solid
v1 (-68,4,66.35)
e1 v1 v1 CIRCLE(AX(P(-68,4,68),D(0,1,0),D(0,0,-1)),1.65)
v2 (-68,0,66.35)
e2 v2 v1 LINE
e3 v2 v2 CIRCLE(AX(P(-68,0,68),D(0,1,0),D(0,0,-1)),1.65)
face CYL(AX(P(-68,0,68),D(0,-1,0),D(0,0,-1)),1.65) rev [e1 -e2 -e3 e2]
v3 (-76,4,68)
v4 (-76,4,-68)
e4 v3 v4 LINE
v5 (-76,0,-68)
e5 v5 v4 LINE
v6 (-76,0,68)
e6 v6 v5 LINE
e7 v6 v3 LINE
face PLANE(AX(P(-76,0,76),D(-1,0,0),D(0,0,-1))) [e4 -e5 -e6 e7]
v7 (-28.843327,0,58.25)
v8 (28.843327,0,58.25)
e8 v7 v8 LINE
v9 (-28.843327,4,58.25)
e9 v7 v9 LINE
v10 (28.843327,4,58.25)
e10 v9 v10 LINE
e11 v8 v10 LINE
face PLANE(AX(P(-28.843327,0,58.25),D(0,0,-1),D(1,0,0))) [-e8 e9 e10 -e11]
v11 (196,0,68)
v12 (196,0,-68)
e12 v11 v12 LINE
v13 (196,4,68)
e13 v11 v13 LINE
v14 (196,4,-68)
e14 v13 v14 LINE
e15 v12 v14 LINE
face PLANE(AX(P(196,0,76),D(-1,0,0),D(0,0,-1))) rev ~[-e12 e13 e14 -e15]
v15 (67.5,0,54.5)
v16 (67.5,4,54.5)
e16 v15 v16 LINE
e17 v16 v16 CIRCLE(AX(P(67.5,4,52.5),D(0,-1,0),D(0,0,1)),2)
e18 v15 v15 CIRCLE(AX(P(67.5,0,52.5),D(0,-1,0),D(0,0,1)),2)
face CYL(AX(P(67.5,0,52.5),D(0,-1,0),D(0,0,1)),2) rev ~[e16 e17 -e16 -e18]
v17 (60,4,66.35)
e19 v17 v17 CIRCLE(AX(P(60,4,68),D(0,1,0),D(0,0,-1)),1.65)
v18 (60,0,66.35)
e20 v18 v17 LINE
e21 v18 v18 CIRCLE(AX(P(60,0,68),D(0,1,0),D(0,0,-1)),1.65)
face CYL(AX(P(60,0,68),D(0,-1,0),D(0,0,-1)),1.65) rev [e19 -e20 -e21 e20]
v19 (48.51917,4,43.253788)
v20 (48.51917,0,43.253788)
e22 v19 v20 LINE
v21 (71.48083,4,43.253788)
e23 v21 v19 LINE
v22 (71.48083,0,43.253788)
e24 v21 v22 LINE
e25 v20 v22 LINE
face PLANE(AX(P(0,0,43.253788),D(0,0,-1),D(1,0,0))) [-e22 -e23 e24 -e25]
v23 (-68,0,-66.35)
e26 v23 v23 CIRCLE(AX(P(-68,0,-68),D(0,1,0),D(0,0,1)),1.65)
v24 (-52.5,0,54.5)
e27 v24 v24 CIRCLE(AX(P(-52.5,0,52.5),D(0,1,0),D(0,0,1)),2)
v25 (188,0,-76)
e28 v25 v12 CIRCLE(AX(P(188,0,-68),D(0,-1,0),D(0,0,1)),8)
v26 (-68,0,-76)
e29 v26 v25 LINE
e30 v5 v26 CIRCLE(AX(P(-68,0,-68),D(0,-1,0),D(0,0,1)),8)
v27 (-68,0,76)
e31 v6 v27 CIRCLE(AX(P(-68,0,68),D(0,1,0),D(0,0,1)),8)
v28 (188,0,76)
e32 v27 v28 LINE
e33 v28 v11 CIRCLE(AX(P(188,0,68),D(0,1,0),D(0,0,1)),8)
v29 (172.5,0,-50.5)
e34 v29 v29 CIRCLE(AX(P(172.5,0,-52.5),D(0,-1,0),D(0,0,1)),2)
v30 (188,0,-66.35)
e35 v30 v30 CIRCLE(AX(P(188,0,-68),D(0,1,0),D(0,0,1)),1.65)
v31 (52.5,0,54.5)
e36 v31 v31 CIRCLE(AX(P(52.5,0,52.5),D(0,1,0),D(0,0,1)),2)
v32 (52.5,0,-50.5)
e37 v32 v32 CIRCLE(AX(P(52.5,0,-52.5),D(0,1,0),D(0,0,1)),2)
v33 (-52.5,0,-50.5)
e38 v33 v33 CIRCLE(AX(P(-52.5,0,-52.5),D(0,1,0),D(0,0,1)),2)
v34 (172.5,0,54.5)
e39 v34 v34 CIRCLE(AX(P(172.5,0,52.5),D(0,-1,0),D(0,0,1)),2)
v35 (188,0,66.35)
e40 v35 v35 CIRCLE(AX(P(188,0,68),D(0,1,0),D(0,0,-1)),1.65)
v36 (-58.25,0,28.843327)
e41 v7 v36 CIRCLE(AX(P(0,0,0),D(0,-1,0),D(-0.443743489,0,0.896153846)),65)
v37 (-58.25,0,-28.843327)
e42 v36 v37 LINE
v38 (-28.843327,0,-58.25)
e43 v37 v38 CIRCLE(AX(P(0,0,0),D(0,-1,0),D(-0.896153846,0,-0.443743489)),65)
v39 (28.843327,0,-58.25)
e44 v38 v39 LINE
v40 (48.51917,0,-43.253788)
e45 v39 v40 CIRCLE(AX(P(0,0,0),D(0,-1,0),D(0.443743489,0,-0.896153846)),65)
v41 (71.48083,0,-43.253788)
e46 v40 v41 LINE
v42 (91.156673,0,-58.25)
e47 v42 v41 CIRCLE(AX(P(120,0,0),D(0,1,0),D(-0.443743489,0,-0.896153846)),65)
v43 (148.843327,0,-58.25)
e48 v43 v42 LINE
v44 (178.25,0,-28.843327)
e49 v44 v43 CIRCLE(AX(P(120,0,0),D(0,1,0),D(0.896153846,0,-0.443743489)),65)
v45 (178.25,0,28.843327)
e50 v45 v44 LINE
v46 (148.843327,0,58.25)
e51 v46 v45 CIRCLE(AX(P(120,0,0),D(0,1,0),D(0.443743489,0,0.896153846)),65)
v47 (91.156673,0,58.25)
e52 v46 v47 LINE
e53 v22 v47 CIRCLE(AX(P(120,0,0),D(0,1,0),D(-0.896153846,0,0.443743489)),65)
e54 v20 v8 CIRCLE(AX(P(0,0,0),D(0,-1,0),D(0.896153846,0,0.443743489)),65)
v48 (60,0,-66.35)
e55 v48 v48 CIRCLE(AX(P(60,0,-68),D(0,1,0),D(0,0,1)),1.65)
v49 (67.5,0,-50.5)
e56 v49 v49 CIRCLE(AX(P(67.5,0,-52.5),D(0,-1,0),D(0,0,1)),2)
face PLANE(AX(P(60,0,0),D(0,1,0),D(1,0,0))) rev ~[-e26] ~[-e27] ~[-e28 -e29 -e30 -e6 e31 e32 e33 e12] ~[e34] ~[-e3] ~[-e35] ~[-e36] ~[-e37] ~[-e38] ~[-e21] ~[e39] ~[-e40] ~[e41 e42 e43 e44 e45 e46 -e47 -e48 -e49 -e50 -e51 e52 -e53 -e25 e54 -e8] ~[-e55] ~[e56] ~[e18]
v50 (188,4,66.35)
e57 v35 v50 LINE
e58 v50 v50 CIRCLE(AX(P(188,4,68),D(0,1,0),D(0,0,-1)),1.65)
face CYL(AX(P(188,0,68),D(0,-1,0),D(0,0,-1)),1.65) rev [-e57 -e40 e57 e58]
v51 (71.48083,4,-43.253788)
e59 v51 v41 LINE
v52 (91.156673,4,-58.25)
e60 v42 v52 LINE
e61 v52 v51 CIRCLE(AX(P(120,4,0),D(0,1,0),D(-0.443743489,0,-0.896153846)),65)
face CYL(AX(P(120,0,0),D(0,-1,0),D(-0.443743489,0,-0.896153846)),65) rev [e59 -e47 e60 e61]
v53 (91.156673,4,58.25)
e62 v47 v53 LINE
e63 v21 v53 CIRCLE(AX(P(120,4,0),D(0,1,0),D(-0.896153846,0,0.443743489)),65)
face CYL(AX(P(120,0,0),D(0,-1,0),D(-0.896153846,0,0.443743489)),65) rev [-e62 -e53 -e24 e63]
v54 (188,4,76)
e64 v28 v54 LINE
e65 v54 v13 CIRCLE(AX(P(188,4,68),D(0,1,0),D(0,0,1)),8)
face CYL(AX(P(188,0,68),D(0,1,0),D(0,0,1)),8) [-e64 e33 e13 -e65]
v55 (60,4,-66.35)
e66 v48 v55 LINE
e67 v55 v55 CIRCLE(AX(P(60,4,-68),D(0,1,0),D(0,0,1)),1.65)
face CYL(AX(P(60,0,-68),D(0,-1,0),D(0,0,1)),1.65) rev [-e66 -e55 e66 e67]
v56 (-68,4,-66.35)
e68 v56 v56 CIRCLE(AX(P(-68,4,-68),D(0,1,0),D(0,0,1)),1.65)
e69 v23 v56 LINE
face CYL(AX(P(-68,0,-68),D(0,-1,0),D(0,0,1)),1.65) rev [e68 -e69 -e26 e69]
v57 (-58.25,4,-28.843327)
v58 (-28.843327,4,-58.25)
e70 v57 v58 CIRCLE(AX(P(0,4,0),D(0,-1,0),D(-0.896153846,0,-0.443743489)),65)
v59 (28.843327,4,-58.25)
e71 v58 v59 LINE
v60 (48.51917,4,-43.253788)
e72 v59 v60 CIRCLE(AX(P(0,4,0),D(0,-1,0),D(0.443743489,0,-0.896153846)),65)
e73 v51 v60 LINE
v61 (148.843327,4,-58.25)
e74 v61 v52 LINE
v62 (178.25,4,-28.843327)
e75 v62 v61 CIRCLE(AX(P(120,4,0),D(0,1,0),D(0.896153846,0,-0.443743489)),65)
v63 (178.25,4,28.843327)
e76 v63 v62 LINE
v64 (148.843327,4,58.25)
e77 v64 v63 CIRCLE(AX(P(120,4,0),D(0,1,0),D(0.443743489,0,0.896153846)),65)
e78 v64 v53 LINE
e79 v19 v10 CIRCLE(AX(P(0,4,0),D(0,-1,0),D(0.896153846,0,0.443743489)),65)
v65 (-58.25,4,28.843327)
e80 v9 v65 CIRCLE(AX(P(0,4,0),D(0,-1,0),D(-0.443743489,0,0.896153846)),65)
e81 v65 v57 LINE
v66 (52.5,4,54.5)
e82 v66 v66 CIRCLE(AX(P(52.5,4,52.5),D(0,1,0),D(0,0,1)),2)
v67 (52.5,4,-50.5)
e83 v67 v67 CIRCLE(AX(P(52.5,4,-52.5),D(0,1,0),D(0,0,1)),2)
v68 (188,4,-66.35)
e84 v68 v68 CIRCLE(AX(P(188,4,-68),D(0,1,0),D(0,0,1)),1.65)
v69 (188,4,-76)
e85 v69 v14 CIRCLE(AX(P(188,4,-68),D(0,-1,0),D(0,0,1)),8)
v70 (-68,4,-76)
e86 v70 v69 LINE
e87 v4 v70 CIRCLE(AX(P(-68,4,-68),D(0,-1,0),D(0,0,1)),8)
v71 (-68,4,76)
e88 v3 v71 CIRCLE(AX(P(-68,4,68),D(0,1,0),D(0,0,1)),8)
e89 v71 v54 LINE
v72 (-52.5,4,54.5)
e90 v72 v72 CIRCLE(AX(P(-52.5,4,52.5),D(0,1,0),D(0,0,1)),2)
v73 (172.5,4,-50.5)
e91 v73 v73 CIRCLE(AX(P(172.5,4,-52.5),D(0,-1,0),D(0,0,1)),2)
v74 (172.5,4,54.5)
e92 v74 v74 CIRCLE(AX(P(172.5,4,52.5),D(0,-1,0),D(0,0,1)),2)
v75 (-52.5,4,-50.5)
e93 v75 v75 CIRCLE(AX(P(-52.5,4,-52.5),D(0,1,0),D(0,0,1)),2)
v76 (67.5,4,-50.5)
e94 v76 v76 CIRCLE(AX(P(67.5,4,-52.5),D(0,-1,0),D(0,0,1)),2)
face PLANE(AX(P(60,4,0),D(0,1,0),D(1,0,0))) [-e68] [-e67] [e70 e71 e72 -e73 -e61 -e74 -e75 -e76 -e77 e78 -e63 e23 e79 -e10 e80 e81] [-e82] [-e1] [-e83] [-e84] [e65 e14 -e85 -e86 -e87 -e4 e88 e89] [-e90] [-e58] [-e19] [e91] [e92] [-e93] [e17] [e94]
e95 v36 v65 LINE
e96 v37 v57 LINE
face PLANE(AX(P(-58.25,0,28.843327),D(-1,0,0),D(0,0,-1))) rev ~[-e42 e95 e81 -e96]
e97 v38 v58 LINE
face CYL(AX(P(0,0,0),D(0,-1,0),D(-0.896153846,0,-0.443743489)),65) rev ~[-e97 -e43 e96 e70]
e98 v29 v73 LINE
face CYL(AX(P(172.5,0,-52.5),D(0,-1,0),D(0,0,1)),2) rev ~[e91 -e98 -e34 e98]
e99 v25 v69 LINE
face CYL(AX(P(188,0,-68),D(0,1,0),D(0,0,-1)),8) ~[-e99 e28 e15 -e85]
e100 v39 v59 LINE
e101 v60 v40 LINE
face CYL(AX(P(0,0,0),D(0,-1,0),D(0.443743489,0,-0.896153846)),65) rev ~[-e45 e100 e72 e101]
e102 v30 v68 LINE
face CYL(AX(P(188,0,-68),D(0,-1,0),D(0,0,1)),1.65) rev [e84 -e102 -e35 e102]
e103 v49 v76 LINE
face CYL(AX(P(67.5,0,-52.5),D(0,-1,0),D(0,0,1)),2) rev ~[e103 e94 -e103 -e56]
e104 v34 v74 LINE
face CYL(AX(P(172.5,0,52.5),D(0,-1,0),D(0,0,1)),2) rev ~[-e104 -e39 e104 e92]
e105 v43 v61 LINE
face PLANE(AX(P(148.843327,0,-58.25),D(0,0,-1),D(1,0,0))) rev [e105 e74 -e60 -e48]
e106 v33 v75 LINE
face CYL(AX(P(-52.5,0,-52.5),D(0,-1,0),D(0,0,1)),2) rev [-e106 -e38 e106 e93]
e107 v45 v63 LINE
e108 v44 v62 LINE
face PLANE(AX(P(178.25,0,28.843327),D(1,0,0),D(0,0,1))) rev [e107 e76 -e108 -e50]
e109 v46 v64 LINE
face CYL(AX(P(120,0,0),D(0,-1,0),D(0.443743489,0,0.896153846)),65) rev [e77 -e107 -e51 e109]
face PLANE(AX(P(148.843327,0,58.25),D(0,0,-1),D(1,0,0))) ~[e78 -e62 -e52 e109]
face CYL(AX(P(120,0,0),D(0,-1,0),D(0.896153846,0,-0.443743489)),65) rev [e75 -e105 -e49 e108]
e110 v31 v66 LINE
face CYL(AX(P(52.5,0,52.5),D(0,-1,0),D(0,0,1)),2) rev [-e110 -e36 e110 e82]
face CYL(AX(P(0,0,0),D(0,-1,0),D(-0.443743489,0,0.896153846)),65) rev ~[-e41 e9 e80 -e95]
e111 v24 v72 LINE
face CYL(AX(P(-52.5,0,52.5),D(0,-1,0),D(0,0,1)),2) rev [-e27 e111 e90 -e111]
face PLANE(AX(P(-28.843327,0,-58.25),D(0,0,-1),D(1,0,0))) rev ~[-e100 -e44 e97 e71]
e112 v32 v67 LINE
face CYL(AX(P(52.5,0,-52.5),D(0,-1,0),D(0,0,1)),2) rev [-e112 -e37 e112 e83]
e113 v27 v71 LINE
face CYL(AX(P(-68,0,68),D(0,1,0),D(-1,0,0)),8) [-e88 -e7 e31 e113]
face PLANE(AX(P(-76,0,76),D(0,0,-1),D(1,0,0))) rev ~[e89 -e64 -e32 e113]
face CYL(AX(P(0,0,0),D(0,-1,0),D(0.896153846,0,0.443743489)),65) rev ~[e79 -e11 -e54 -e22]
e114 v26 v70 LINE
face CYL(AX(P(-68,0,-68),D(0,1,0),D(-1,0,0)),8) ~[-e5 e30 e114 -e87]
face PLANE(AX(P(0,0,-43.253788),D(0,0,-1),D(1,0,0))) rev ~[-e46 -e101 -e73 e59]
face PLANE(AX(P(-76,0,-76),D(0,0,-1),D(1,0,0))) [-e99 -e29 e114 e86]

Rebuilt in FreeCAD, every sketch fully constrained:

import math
import FreeCAD as App
import Part
import Sketcher


def edges_at(feature, points):
    """Names of the edges that pass closest to the given points."""
    edges = feature.Shape.Edges
    near = lambda p: min(range(len(edges)), key=lambda i: edges[i].distToShape(Part.Vertex(*p))[0])
    return sorted({f"Edge{near(p) + 1}" for p in points})


def add_polygon(sketch, points):
    """Adds a closed chain of lines whose ends are joined by coincident constraints."""
    first, n = sketch.GeometryCount, len(points)
    for a, b in zip(points, points[1:] + points[:1]):
        sketch.addGeometry(Part.LineSegment(App.Vector(*a, 0), App.Vector(*b, 0)), False)
    for i in range(n):
        sketch.addConstraint(Sketcher.Constraint("Coincident", first + i, 2, first + (i + 1) % n, 1))

doc = App.newDocument("Part")
body = doc.addObject("PartDesign::Body", "Body")

sketch1 = body.newObject("Sketcher::SketchObject", "Sketch")
sketch1.AttachmentSupport = (doc.getObject("XZ_Plane"), [""])
sketch1.MapMode = "FlatFace"
add_polygon(sketch1, [(-60, -60), (-60, 60), (60, 60), (60, -60)])
sketch1.addGeometry(Part.Circle(App.Vector(-52.5, 52.5, 0), App.Vector(0, 0, 1), 2), False)
sketch1.addGeometry(Part.Circle(App.Vector(52.5, 52.5, 0), App.Vector(0, 0, 1), 2), False)
sketch1.addGeometry(Part.Circle(App.Vector(-52.5, -52.5, 0), App.Vector(0, 0, 1), 2), False)
sketch1.addGeometry(Part.LineSegment(App.Vector(28.843327, 58.25, 0), App.Vector(-28.843327, 58.25, 0)), False)
sketch1.addGeometry(Part.ArcOfCircle(Part.Circle(App.Vector(0, 0, 0), App.Vector(0, 0, 1), 65), math.radians(116.342976), math.radians(153.657024)), False)
sketch1.addGeometry(Part.LineSegment(App.Vector(-58.25, 28.843327, 0), App.Vector(-58.25, -28.843327, 0)), False)
sketch1.addGeometry(Part.ArcOfCircle(Part.Circle(App.Vector(0, 0, 0), App.Vector(0, 0, 1), 65), math.radians(-153.657024), math.radians(-116.342976)), False)
sketch1.addGeometry(Part.LineSegment(App.Vector(-28.843327, -58.25, 0), App.Vector(28.843327, -58.25, 0)), False)
sketch1.addGeometry(Part.ArcOfCircle(Part.Circle(App.Vector(0, 0, 0), App.Vector(0, 0, 1), 65), math.radians(-63.657024), math.radians(-26.342976)), False)
sketch1.addGeometry(Part.LineSegment(App.Vector(58.25, -28.843327, 0), App.Vector(58.25, 28.843327, 0)), False)
sketch1.addGeometry(Part.ArcOfCircle(Part.Circle(App.Vector(0, 0, 0), App.Vector(0, 0, 1), 65), math.radians(26.342976), math.radians(63.657024)), False)
sketch1.addGeometry(Part.Circle(App.Vector(52.5, -52.5, 0), App.Vector(0, 0, 1), 2), False)
sketch1.addConstraint([
    Sketcher.Constraint("Coincident", 7, 2, 8, 1),
    Sketcher.Constraint("Coincident", 8, 2, 9, 1),
    Sketcher.Constraint("Coincident", 9, 2, 10, 1),
    Sketcher.Constraint("Coincident", 10, 2, 11, 1),
    Sketcher.Constraint("Coincident", 11, 2, 12, 1),
    Sketcher.Constraint("Coincident", 12, 2, 13, 1),
    Sketcher.Constraint("Coincident", 13, 2, 14, 1),
    Sketcher.Constraint("Coincident", 14, 2, 7, 1),
    Sketcher.Constraint("Vertical", 0),
    Sketcher.Constraint("Horizontal", 1),
    Sketcher.Constraint("Vertical", 2),
    Sketcher.Constraint("Horizontal", 3),
    Sketcher.Constraint("Horizontal", 7),
    Sketcher.Constraint("Vertical", 9),
    Sketcher.Constraint("Horizontal", 11),
    Sketcher.Constraint("Vertical", 13),
    Sketcher.Constraint("Coincident", 8, 3, -1, 1),
    Sketcher.Constraint("Coincident", 10, 3, -1, 1),
    Sketcher.Constraint("Coincident", 12, 3, -1, 1),
    Sketcher.Constraint("Coincident", 14, 3, -1, 1),
    Sketcher.Constraint("Equal", 4, 5),
    Sketcher.Constraint("Equal", 5, 6),
    Sketcher.Constraint("Equal", 8, 10),
    Sketcher.Constraint("Equal", 10, 12),
    Sketcher.Constraint("Equal", 12, 14),
    Sketcher.Constraint("Equal", 6, 15),
    Sketcher.Constraint("Symmetric", 5, 3, 6, 3, -1, 1),
    Sketcher.Constraint("Symmetric", 4, 3, 15, 3, -1, 1),
    Sketcher.Constraint("Symmetric", 0, 2, 2, 2, -1, 1),
    Sketcher.Constraint("Symmetric", 4, 3, 5, 3, -2),
    Sketcher.Constraint("Horizontal", 9, 2, 12, 2),
    Sketcher.Constraint("Vertical", 7, 2, 10, 2),
    Sketcher.Constraint("Equal", 3, 0),
    Sketcher.Constraint("Equal", 11, 9),
    Sketcher.Constraint("Diameter", 4, 4.0),
    Sketcher.Constraint("Radius", 8, 65.0),
    Sketcher.Constraint("DistanceX", 1, 1, 1, 2, 120.0),
    Sketcher.Constraint("DistanceX", 4, 3, 5, 3, 105.0),
    Sketcher.Constraint("DistanceY", 6, 3, 4, 3, 105.0),
    Sketcher.Constraint("DistanceY", -1, 1, 7, 2, 58.25),
])
pad1 = body.newObject("PartDesign::Pad", "Pad")
pad1.Profile = sketch1
pad1.Length = 4
pad1.Reversed = True
doc.recompute()

datumplane = body.newObject("PartDesign::Plane", "DatumPlane")
datumplane.AttachmentSupport = (doc.getObject("YZ_Plane"), [""])
datumplane.MapMode = "FlatFace"
datumplane.AttachmentOffset = App.Placement(App.Vector(0, 0, 60), App.Rotation())
mirrored = body.newObject("PartDesign::Mirrored", "Mirrored")
mirrored.Originals = [pad1]
mirrored.MirrorPlane = (datumplane, [""])
body.Tip = mirrored

sketch2 = body.newObject("Sketcher::SketchObject", "Sketch001")
sketch2.AttachmentSupport = (doc.getObject("XZ_Plane"), [""])
sketch2.MapMode = "FlatFace"
add_polygon(sketch2, [(-76, -76), (-76, 76), (196, 76), (196, -76)])
sketch2.addGeometry(Part.Circle(App.Vector(-68, 68, 0), App.Vector(0, 0, 1), 1.65), False)
sketch2.addGeometry(Part.Circle(App.Vector(60, 68, 0), App.Vector(0, 0, 1), 1.65), False)
sketch2.addGeometry(Part.Circle(App.Vector(188, 68, 0), App.Vector(0, 0, 1), 1.65), False)
sketch2.addGeometry(Part.Circle(App.Vector(-68, -68, 0), App.Vector(0, 0, 1), 1.65), False)
add_polygon(sketch2, [(180, 60), (-60, 60), (-60, -60), (180, -60)])
sketch2.addGeometry(Part.Circle(App.Vector(60, -68, 0), App.Vector(0, 0, 1), 1.65), False)
sketch2.addGeometry(Part.Circle(App.Vector(188, -68, 0), App.Vector(0, 0, 1), 1.65), False)
sketch2.addConstraint([
    Sketcher.Constraint("Vertical", 0),
    Sketcher.Constraint("Horizontal", 1),
    Sketcher.Constraint("Vertical", 2),
    Sketcher.Constraint("Horizontal", 3),
    Sketcher.Constraint("Horizontal", 8),
    Sketcher.Constraint("Vertical", 9),
    Sketcher.Constraint("Horizontal", 10),
    Sketcher.Constraint("Vertical", 11),
    Sketcher.Constraint("Equal", 4, 5),
    Sketcher.Constraint("Equal", 5, 6),
    Sketcher.Constraint("Equal", 6, 7),
    Sketcher.Constraint("Equal", 7, 12),
    Sketcher.Constraint("Equal", 12, 13),
    Sketcher.Constraint("Symmetric", 4, 3, 7, 3, -1),
    Sketcher.Constraint("Symmetric", 5, 3, 12, 3, -1),
    Sketcher.Constraint("Symmetric", 6, 3, 13, 3, -1),
    Sketcher.Constraint("Horizontal", 4, 3, 5, 3),
    Sketcher.Constraint("Horizontal", 5, 3, 6, 3),
    Sketcher.Constraint("Diameter", 4, 3.3),
    Sketcher.Constraint("DistanceX", 1, 1, 1, 2, 272.0),
    Sketcher.Constraint("DistanceX", 8, 2, 8, 1, 240.0),
    Sketcher.Constraint("DistanceY", 0, 1, 0, 2, 152.0),
    Sketcher.Constraint("DistanceY", 9, 2, 9, 1, 120.0),
    Sketcher.Constraint("DistanceX", 4, 3, -1, 1, 68.0),
    Sketcher.Constraint("DistanceY", -1, 1, 4, 3, 68.0),
    Sketcher.Constraint("DistanceX", -1, 1, 5, 3, 60.0),
    Sketcher.Constraint("DistanceX", -1, 1, 6, 3, 188.0),
    Sketcher.Constraint("DistanceX", 0, 2, -1, 1, 76.0),
    Sketcher.Constraint("DistanceY", -1, 1, 0, 2, 76.0),
    Sketcher.Constraint("DistanceX", 8, 2, -1, 1, 60.0),
    Sketcher.Constraint("DistanceY", -1, 1, 8, 2, 60.0),
])
pad2 = body.newObject("PartDesign::Pad", "Pad001")
pad2.Profile = sketch2
pad2.Length = 4
pad2.Reversed = True
doc.recompute()

fillet = body.newObject("PartDesign::Fillet", "Fillet")
fillet.Base = (pad2, edges_at(pad2, [
    (196, 2, -76),
    (-76, 2, -76),
    (-76, 2, 76),
    (196, 2, 76),
]))
fillet.Radius = 8

sketch3 = body.newObject("Sketcher::SketchObject", "Sketch002")
sketch3.AttachmentSupport = (doc.getObject("XZ_Plane"), [""])
sketch3.MapMode = "FlatFace"
add_polygon(sketch3, [(0, -43.253788), (0, 43.253788), (120, 43.253788), (120, -43.253788)])
sketch3.addConstraint([
    Sketcher.Constraint("Vertical", 0),
    Sketcher.Constraint("Horizontal", 1),
    Sketcher.Constraint("Vertical", 2),
    Sketcher.Constraint("Horizontal", 3),
    Sketcher.Constraint("Symmetric", 0, 2, 3, 2, -1, 1),
    Sketcher.Constraint("DistanceX", 1, 1, 1, 2, 120.0),
    Sketcher.Constraint("DistanceY", 0, 1, 0, 2, 86.507576),
])
pocket1 = body.newObject("PartDesign::Pocket", "Pocket")
pocket1.Profile = sketch3
pocket1.Type = "ThroughAll"

doc.recompute()
